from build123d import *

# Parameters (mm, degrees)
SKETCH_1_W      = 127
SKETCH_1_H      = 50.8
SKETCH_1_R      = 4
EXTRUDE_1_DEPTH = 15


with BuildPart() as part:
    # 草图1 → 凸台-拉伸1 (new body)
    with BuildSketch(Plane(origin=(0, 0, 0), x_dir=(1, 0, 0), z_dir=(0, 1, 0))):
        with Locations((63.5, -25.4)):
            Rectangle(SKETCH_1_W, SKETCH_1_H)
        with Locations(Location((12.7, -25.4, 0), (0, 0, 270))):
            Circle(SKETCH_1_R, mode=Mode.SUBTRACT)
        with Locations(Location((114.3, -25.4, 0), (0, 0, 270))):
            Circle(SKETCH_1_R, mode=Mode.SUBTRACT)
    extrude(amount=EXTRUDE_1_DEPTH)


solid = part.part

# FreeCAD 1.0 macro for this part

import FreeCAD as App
import Part
import Sketcher

V = App.Vector


def add_polygon(sketch, points):
    """Adds a closed chain of lines whose ends are joined by coincident constraints."""
    first, n = sketch.GeometryCount, len(points)
    for a, b in zip(points, points[1:] + points[:1]):
        sketch.addGeometry(Part.LineSegment(App.Vector(*a, 0), App.Vector(*b, 0)), False)
    for i in range(n):
        sketch.addConstraint(Sketcher.Constraint("Coincident", first + i, 2, first + (i + 1) % n, 1))

doc = App.newDocument("Part")
body = doc.addObject("PartDesign::Body", "Body")

sketch1 = body.newObject("Sketcher::SketchObject", "Sketch")
sketch1.AttachmentSupport = (doc.getObject("XZ_Plane"), [""])
sketch1.MapMode = "FlatFace"
add_polygon(sketch1, [(0, 0), (0, 50.8), (127, 50.8), (127, 0)])
sketch1.addGeometry(Part.Circle(V(12.7, 25.4, 0), V(0, 0, 1), 4), False)
sketch1.addGeometry(Part.Circle(V(114.3, 25.4, 0), V(0, 0, 1), 4), False)
sketch1.addConstraint([
    Sketcher.Constraint("Vertical", 0),
    Sketcher.Constraint("Horizontal", 1),
    Sketcher.Constraint("Vertical", 2),
    Sketcher.Constraint("Horizontal", 3),
    Sketcher.Constraint("Coincident", 3, 2, -1, 1),
    Sketcher.Constraint("Equal", 4, 5),
    Sketcher.Constraint("Horizontal", 4, 3, 5, 3),
    Sketcher.Constraint("Diameter", 4, 8.0),
    Sketcher.Constraint("DistanceX", 1, 1, 1, 2, 127.0),
    Sketcher.Constraint("DistanceY", 0, 1, 0, 2, 50.8),
    Sketcher.Constraint("DistanceX", -1, 1, 4, 3, 12.7),
    Sketcher.Constraint("DistanceY", -1, 1, 4, 3, 25.4),
    Sketcher.Constraint("DistanceX", -1, 1, 5, 3, 114.3),
])
pad1 = body.newObject("PartDesign::Pad", "Pad")
pad1.Profile = sketch1
pad1.Length = 15
pad1.Reversed = True

doc.recompute()
